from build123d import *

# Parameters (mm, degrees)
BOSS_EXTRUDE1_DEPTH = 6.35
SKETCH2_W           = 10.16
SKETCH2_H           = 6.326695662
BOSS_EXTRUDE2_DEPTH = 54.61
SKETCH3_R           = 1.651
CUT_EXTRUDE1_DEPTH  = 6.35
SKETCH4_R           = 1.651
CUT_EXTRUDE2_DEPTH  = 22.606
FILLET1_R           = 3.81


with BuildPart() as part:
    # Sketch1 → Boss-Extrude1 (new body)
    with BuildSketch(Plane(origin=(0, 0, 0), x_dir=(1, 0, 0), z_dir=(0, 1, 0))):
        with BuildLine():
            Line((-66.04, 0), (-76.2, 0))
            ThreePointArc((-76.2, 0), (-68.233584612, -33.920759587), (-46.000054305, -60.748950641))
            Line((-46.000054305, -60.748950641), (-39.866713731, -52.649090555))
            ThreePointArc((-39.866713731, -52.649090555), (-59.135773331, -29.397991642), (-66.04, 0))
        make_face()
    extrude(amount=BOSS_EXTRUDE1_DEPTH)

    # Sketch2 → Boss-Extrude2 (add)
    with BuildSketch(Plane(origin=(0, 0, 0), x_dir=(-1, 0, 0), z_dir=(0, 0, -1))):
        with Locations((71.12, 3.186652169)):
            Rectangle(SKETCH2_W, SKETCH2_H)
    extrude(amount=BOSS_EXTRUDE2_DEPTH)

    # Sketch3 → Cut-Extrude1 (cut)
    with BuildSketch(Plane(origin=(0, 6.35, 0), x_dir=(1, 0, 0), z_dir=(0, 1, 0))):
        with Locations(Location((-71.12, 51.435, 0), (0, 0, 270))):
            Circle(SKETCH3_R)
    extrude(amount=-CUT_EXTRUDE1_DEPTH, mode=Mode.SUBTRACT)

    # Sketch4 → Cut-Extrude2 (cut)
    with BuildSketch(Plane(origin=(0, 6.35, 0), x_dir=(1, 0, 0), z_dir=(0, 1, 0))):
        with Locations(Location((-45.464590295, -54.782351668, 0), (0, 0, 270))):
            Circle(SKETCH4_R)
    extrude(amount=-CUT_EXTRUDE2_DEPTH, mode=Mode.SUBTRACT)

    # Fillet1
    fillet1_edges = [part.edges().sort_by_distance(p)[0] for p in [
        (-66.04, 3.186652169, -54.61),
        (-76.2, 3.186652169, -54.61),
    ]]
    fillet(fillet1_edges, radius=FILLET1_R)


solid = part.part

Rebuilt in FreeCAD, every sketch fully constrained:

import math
import FreeCAD as App
import Part
import Sketcher

V = App.Vector
Q = App.Units.Quantity


def edges_at(feature, points):
    """Names of the edges that pass closest to the given points."""
    edges = feature.Shape.Edges
    near = lambda p: min(range(len(edges)), key=lambda i: edges[i].distToShape(Part.Vertex(*p))[0])
    return sorted({f"Edge{near(p) + 1}" for p in points})


def add_polygon(sketch, points):
    """Adds a closed chain of lines whose ends are joined by coincident constraints."""
    first, n = sketch.GeometryCount, len(points)
    for a, b in zip(points, points[1:] + points[:1]):
        sketch.addGeometry(Part.LineSegment(App.Vector(*a, 0), App.Vector(*b, 0)), False)
    for i in range(n):
        sketch.addConstraint(Sketcher.Constraint("Coincident", first + i, 2, first + (i + 1) % n, 1))

doc = App.newDocument("Part")
body = doc.addObject("PartDesign::Body", "Body")

# Sketch on XZ plane
sketch1 = body.newObject("Sketcher::SketchObject", "Sketch")
sketch1.AttachmentSupport = (doc.getObject("XZ_Plane"), [""])
sketch1.MapMode = "FlatFace"
sketch1.addGeometry([
    Part.LineSegment(V(-66, 0, 0), V(-76, 0, 0)),
    Part.ArcOfCircle(Part.Circle(V(0, 0, 0), V(0, 0, 1), 76), math.radians(127), math.radians(180)),
    Part.LineSegment(V(-46, 61, 0), V(-40, 53, 0)),
    Part.ArcOfCircle(Part.Circle(V(0, 0, 0), V(0, 0, 1), 66), math.radians(127), math.radians(180)),
], False)
sketch1.addConstraint([
    Sketcher.Constraint("Coincident", 0, 2, 1, 2),
    Sketcher.Constraint("Coincident", 1, 1, 2, 1),
    Sketcher.Constraint("Coincident", 2, 2, 3, 1),
    Sketcher.Constraint("Coincident", 3, 2, 0, 1),
    Sketcher.Constraint("Horizontal", 0),
    Sketcher.Constraint("Coincident", 1, 3, -1, 1),
    Sketcher.Constraint("Coincident", 3, 3, -1, 1),
    Sketcher.Constraint("PointOnObject", 0, 2, -1),
    Sketcher.Constraint("Radius", 1, Q("3 in")),
    Sketcher.Constraint("Radius", 3, Q("2.6 in")),
    Sketcher.Constraint("DistanceY", -1, 1, 1, 1, Q("60.748951 mm")),
    Sketcher.Constraint("DistanceY", -1, 1, 2, 2, Q("52.649091 mm")),
])
pad1 = body.newObject("PartDesign::Pad", "Pad")
pad1.Profile = sketch1
pad1.Length = Q("0.25 in")
pad1.Reversed = True

# Sketch on XY plane
sketch2 = body.newObject("Sketcher::SketchObject", "Sketch001")
sketch2.AttachmentSupport = (doc.getObject("XY_Plane"), [""])
sketch2.MapMode = "FlatFace"
add_polygon(sketch2, [(-66, 6), (-66, 0), (-76, 0), (-76, 6)])  # lines 0-3
sketch2.addConstraint([
    Sketcher.Constraint("Vertical", 0),
    Sketcher.Constraint("Horizontal", 1),
    Sketcher.Constraint("Vertical", 2),
    Sketcher.Constraint("Horizontal", 3),
    Sketcher.Constraint("DistanceX", 1, 2, 1, 1, Q("0.4 in")),
    Sketcher.Constraint("DistanceX", 1, 2, -1, 1, Q("3 in")),
    Sketcher.Constraint("DistanceY", -1, 1, 2, 2, Q("0.25 in")),
    Sketcher.Constraint("DistanceY", 0, 2, 0, 1, Q("6.326696 mm")),
])
pad2 = body.newObject("PartDesign::Pad", "Pad001")
pad2.Profile = sketch2
pad2.Length = Q("2.15 in")
pad2.Reversed = True

# Sketch on XZ plane
sketch3 = body.newObject("Sketcher::SketchObject", "Sketch002")
sketch3.AttachmentSupport = (doc.getObject("XZ_Plane"), [""])
sketch3.MapMode = "FlatFace"
sketch3.AttachmentOffset = App.Placement(V(0, 0, -0.25 * 25.4), App.Rotation())
sketch3.addGeometry(Part.Circle(V(-71.1, -51.4, 0), V(0, 0, 1), 1.7), False)
sketch3.addConstraint([
    Sketcher.Constraint("Diameter", 0, Q("0.13 in")),
    Sketcher.Constraint("DistanceX", 0, 3, -1, 1, Q("2.8 in")),
    Sketcher.Constraint("DistanceY", 0, 3, -1, 1, Q("2.025 in")),
])
pocket1 = body.newObject("PartDesign::Pocket", "Pocket")
pocket1.Profile = sketch3
pocket1.Length = Q("0.25 in")
pocket1.Reversed = True

# Sketch on XZ plane
sketch4 = body.newObject("Sketcher::SketchObject", "Sketch003")
sketch4.AttachmentSupport = (doc.getObject("XZ_Plane"), [""])
sketch4.MapMode = "FlatFace"
sketch4.AttachmentOffset = App.Placement(V(0, 0, -0.25 * 25.4), App.Rotation())
sketch4.addGeometry(Part.Circle(V(-45.5, 54.8, 0), V(0, 0, 1), 1.7), False)
sketch4.addConstraint([
    Sketcher.Constraint("Diameter", 0, Q("0.13 in")),
    Sketcher.Constraint("DistanceX", 0, 3, -1, 1, Q("45.46459 mm")),
    Sketcher.Constraint("DistanceY", -1, 1, 0, 3, Q("54.782352 mm")),
])
pocket2 = body.newObject("PartDesign::Pocket", "Pocket001")
pocket2.Profile = sketch4
pocket2.Length = Q("0.89 in")
pocket2.Reversed = True
doc.recompute()

fillet = body.newObject("PartDesign::Fillet", "Fillet")
fillet.Base = (pocket2, edges_at(pocket2, [(-66.04, 3.187, -54.61), (-76.2, 3.187, -54.61)]))
fillet.Radius = Q("0.15 in")

doc.recompute()
